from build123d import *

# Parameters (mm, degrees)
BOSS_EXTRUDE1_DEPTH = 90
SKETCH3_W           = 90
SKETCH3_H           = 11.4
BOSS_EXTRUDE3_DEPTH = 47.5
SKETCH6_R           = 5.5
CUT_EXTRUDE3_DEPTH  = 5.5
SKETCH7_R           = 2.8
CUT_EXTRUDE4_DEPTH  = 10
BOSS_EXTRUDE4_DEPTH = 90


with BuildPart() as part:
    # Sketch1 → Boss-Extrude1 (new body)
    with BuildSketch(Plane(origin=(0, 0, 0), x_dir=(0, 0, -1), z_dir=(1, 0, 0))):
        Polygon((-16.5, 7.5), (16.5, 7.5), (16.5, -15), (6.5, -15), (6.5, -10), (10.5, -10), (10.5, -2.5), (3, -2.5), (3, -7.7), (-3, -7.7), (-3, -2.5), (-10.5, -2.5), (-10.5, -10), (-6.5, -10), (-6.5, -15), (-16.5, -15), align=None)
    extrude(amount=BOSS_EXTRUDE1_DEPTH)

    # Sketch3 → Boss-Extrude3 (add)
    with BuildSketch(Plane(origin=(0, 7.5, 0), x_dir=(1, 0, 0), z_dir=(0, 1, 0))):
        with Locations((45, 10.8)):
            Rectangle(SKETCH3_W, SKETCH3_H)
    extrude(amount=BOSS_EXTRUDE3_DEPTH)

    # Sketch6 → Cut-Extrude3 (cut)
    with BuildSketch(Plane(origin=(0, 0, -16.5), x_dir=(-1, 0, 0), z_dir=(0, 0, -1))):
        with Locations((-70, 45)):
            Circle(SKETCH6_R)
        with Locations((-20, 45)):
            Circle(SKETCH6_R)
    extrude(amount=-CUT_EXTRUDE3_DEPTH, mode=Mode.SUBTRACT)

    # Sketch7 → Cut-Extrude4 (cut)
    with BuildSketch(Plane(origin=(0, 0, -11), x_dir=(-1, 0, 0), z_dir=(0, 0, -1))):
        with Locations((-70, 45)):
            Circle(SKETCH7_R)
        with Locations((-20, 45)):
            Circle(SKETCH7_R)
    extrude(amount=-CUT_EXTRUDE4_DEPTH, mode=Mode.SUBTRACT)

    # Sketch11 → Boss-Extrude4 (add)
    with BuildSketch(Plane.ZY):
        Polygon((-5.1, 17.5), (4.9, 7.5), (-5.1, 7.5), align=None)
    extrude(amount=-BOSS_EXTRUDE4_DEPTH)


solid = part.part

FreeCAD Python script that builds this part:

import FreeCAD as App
import Part
import Sketcher
Q = App.Units.Quantity

doc = App.newDocument("Part")
body = doc.addObject("PartDesign::Body", "Body")

# Sketch on YZ plane
sketch1 = body.newObject("Sketcher::SketchObject", "Sketch")
sketch1.AttachmentSupport = (doc.getObject("YZ_Plane"), [""])
sketch1.MapMode = "FlatFace"
sketch1.addGeometry([
    Part.LineSegment(App.Vector(7.5, -16.5, 0), App.Vector(7.5, 16.5, 0)),  # 0
    Part.LineSegment(App.Vector(7.5, 16.5, 0), App.Vector(-15, 16.5, 0)),  # 1
    Part.LineSegment(App.Vector(-15, 16.5, 0), App.Vector(-15, 6.5, 0)),  # 2
    Part.LineSegment(App.Vector(-15, 6.5, 0), App.Vector(-10, 6.5, 0)),  # 3
    Part.LineSegment(App.Vector(-10, 6.5, 0), App.Vector(-10, 10.5, 0)),  # 4
    Part.LineSegment(App.Vector(-10, 10.5, 0), App.Vector(-2.5, 10.5, 0)),  # 5
    Part.LineSegment(App.Vector(-2.5, 10.5, 0), App.Vector(-2.5, 3, 0)),  # 6
    Part.LineSegment(App.Vector(-2.5, 3, 0), App.Vector(-7.7, 3, 0)),  # 7
    Part.LineSegment(App.Vector(-7.7, 3, 0), App.Vector(-7.7, -3, 0)),  # 8
    Part.LineSegment(App.Vector(-7.7, -3, 0), App.Vector(-2.5, -3, 0)),  # 9
    Part.LineSegment(App.Vector(-2.5, -3, 0), App.Vector(-2.5, -10.5, 0)),  # 10
    Part.LineSegment(App.Vector(-2.5, -10.5, 0), App.Vector(-10, -10.5, 0)),  # 11
    Part.LineSegment(App.Vector(-10, -10.5, 0), App.Vector(-10, -6.5, 0)),  # 12
    Part.LineSegment(App.Vector(-10, -6.5, 0), App.Vector(-15, -6.5, 0)),  # 13
    Part.LineSegment(App.Vector(-15, -6.5, 0), App.Vector(-15, -16.5, 0)),  # 14
    Part.LineSegment(App.Vector(-15, -16.5, 0), App.Vector(7.5, -16.5, 0)),  # 15
], False)
sketch1.addConstraint([
    Sketcher.Constraint("Coincident", 0, 2, 1, 1),
    Sketcher.Constraint("Coincident", 1, 2, 2, 1),
    Sketcher.Constraint("Coincident", 2, 2, 3, 1),
    Sketcher.Constraint("Coincident", 3, 2, 4, 1),
    Sketcher.Constraint("Coincident", 4, 2, 5, 1),
    Sketcher.Constraint("Coincident", 5, 2, 6, 1),
    Sketcher.Constraint("Coincident", 6, 2, 7, 1),
    Sketcher.Constraint("Coincident", 7, 2, 8, 1),
    Sketcher.Constraint("Coincident", 8, 2, 9, 1),
    Sketcher.Constraint("Coincident", 9, 2, 10, 1),
    Sketcher.Constraint("Coincident", 10, 2, 11, 1),
    Sketcher.Constraint("Coincident", 11, 2, 12, 1),
    Sketcher.Constraint("Coincident", 12, 2, 13, 1),
    Sketcher.Constraint("Coincident", 13, 2, 14, 1),
    Sketcher.Constraint("Coincident", 14, 2, 15, 1),
    Sketcher.Constraint("Coincident", 15, 2, 0, 1),
    Sketcher.Constraint("Vertical", 0),
    Sketcher.Constraint("Horizontal", 1),
    Sketcher.Constraint("Vertical", 2),
    Sketcher.Constraint("Horizontal", 3),
    Sketcher.Constraint("Vertical", 4),
    Sketcher.Constraint("Horizontal", 5),
    Sketcher.Constraint("Vertical", 6),
    Sketcher.Constraint("Horizontal", 7),
    Sketcher.Constraint("Vertical", 8),
    Sketcher.Constraint("Horizontal", 9),
    Sketcher.Constraint("Vertical", 10),
    Sketcher.Constraint("Horizontal", 11),
    Sketcher.Constraint("Vertical", 12),
    Sketcher.Constraint("Horizontal", 13),
    Sketcher.Constraint("Vertical", 14),
    Sketcher.Constraint("Horizontal", 15),
    Sketcher.Constraint("Symmetric", 6, 2, 9, 2, -1),
    Sketcher.Constraint("Symmetric", 4, 2, 11, 2, -1),
    Sketcher.Constraint("Symmetric", 2, 2, 13, 2, -1),
    Sketcher.Constraint("Equal", 11, 6),
    Sketcher.Constraint("Equal", 2, 14),
    Sketcher.Constraint("DistanceX", 3, 1, 3, 2, Q("5 mm")),
    Sketcher.Constraint("DistanceY", 0, 1, 0, 2, Q("33 mm")),
    Sketcher.Constraint("DistanceY", 2, 2, 2, 1, Q("10 mm")),
    Sketcher.Constraint("DistanceY", 4, 1, 4, 2, Q("4 mm")),
    Sketcher.Constraint("DistanceY", 8, 2, 8, 1, Q("6 mm")),
    Sketcher.Constraint("DistanceX", 1, 2, 1, 1, Q("22.5 mm")),
    Sketcher.Constraint("DistanceX", 7, 2, 7, 1, Q("5.2 mm")),
    Sketcher.Constraint("DistanceX", 1, 2, -1, 1, Q("15 mm")),
])
pad1 = body.newObject("PartDesign::Pad", "Pad")
pad1.Profile = sketch1
pad1.Length = 90

# Sketch on XZ plane
sketch2 = body.newObject("Sketcher::SketchObject", "Sketch001")
sketch2.AttachmentSupport = (doc.getObject("XZ_Plane"), [""])
sketch2.MapMode = "FlatFace"
sketch2.AttachmentOffset = App.Placement(App.Vector(0, 0, -7.5), App.Rotation())
sketch2.addGeometry([
    Part.LineSegment(App.Vector(0, -16, 0), App.Vector(0, -5, 0)),
    Part.LineSegment(App.Vector(0, -5, 0), App.Vector(90, -5, 0)),
    Part.LineSegment(App.Vector(90, -5, 0), App.Vector(90, -16, 0)),
    Part.LineSegment(App.Vector(90, -16, 0), App.Vector(0, -16, 0)),
], False)
sketch2.addConstraint([
    Sketcher.Constraint("Coincident", 0, 2, 1, 1),
    Sketcher.Constraint("Coincident", 1, 2, 2, 1),
    Sketcher.Constraint("Coincident", 2, 2, 3, 1),
    Sketcher.Constraint("Coincident", 3, 2, 0, 1),
    Sketcher.Constraint("Vertical", 0),
    Sketcher.Constraint("Horizontal", 1),
    Sketcher.Constraint("Vertical", 2),
    Sketcher.Constraint("Horizontal", 3),
    Sketcher.Constraint("PointOnObject", 0, 2, -2),
    Sketcher.Constraint("DistanceX", 1, 1, 1, 2, Q("90 mm")),
    Sketcher.Constraint("DistanceY", 0, 1, 0, 2, Q("11.4 mm")),
    Sketcher.Constraint("DistanceY", 0, 2, -1, 1, Q("5.1 mm")),
])
pad2 = body.newObject("PartDesign::Pad", "Pad001")
pad2.Profile = sketch2
pad2.Length = 47.5
pad2.Reversed = True

# Sketch on XY plane
sketch3 = body.newObject("Sketcher::SketchObject", "Sketch002")
sketch3.AttachmentSupport = (doc.getObject("XY_Plane"), [""])
sketch3.MapMode = "FlatFace"
sketch3.AttachmentOffset = App.Placement(App.Vector(0, 0, -16.5), App.Rotation())
sketch3.addGeometry([
    Part.Circle(App.Vector(70, 45, 0), App.Vector(0, 0, 1), 6),
    Part.Circle(App.Vector(20, 45, 0), App.Vector(0, 0, 1), 6),
], False)
sketch3.addConstraint([
    Sketcher.Constraint("Equal", 0, 1),
    Sketcher.Constraint("Horizontal", 0, 3, 1, 3),
    Sketcher.Constraint("Diameter", 0, Q("11 mm")),
    Sketcher.Constraint("DistanceX", -1, 1, 0, 3, Q("70 mm")),
    Sketcher.Constraint("DistanceY", -1, 1, 0, 3, Q("45 mm")),
    Sketcher.Constraint("DistanceX", -1, 1, 1, 3, Q("20 mm")),
])
pocket1 = body.newObject("PartDesign::Pocket", "Pocket")
pocket1.Profile = sketch3
pocket1.Length = 5.5
pocket1.Reversed = True

# Sketch on XY plane
sketch4 = body.newObject("Sketcher::SketchObject", "Sketch003")
sketch4.AttachmentSupport = (doc.getObject("XY_Plane"), [""])
sketch4.MapMode = "FlatFace"
sketch4.AttachmentOffset = App.Placement(App.Vector(0, 0, -11), App.Rotation())
sketch4.addGeometry([
    Part.Circle(App.Vector(70, 45, 0), App.Vector(0, 0, 1), 2.8),
    Part.Circle(App.Vector(20, 45, 0), App.Vector(0, 0, 1), 2.8),
], False)
sketch4.addConstraint([
    Sketcher.Constraint("Equal", 0, 1),
    Sketcher.Constraint("Horizontal", 0, 3, 1, 3),
    Sketcher.Constraint("Diameter", 0, Q("5.6 mm")),
    Sketcher.Constraint("DistanceX", -1, 1, 0, 3, Q("70 mm")),
    Sketcher.Constraint("DistanceY", -1, 1, 0, 3, Q("45 mm")),
    Sketcher.Constraint("DistanceX", -1, 1, 1, 3, Q("20 mm")),
])
pocket2 = body.newObject("PartDesign::Pocket", "Pocket001")
pocket2.Profile = sketch4
pocket2.Length = 10
pocket2.Reversed = True

# Sketch on YZ plane
sketch5 = body.newObject("Sketcher::SketchObject", "Sketch004")
sketch5.AttachmentSupport = (doc.getObject("YZ_Plane"), [""])
sketch5.MapMode = "FlatFace"
sketch5.addGeometry([
    Part.LineSegment(App.Vector(8, 5, 0), App.Vector(18, -5, 0)),
    Part.LineSegment(App.Vector(18, -5, 0), App.Vector(8, -5, 0)),
    Part.LineSegment(App.Vector(8, -5, 0), App.Vector(8, 5, 0)),
], False)
sketch5.addConstraint([
    Sketcher.Constraint("Coincident", 0, 2, 1, 1),
    Sketcher.Constraint("Coincident", 1, 2, 2, 1),
    Sketcher.Constraint("Coincident", 2, 2, 0, 1),
    Sketcher.Constraint("Horizontal", 1),
    Sketcher.Constraint("Vertical", 2),
    Sketcher.Constraint("Equal", 1, 2),
    Sketcher.Constraint("DistanceX", 1, 2, 1, 1, Q("10 mm")),
    Sketcher.Constraint("DistanceX", -1, 1, 0, 2, Q("17.5 mm")),
    Sketcher.Constraint("DistanceY", 0, 2, -1, 1, Q("5.1 mm")),
])
pad3 = body.newObject("PartDesign::Pad", "Pad002")
pad3.Profile = sketch5
pad3.Length = 90

doc.recompute()
